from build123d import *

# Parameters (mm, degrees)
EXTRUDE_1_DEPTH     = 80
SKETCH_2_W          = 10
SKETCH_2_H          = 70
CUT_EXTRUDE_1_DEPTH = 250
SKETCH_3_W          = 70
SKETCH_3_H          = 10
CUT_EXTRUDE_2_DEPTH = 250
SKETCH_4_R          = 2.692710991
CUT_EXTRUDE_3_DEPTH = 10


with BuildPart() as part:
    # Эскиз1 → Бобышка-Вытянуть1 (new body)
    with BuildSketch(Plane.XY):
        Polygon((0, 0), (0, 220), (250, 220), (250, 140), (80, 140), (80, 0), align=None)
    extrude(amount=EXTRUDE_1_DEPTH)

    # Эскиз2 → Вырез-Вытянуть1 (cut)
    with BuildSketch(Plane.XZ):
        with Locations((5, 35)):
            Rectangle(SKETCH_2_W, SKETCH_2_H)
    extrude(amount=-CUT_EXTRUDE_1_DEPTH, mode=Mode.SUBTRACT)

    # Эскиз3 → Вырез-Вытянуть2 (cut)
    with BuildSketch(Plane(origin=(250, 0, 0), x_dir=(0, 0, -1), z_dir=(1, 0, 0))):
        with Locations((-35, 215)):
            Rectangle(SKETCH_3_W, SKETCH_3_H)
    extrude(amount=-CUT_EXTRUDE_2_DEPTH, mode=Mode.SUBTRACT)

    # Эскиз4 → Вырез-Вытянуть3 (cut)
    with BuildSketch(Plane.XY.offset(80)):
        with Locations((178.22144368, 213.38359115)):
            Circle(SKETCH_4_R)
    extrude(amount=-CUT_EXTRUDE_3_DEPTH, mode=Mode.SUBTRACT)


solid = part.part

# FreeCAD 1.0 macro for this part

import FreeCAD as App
import Part
import Sketcher
from FreeCAD import Vector


def add_polygon(sketch, points):
    """Adds a closed chain of lines whose ends are joined by coincident constraints."""
    first, n = sketch.GeometryCount, len(points)
    for a, b in zip(points, points[1:] + points[:1]):
        sketch.addGeometry(Part.LineSegment(App.Vector(*a, 0), App.Vector(*b, 0)), False)
    for i in range(n):
        sketch.addConstraint(Sketcher.Constraint("Coincident", first + i, 2, first + (i + 1) % n, 1))

doc = App.newDocument("Part")
body = doc.addObject("PartDesign::Body", "Body")

sketch1 = doc.addObject("Sketcher::SketchObject", "Sketch")
body.addObject(sketch1)
sketch1.AttachmentSupport = (doc.XY_Plane, [""])
sketch1.MapMode = "FlatFace"
add_polygon(sketch1, [(0, 220), (0, 0), (80, 0), (80, 140), (250, 140), (250, 220)])
sketch1.addConstraint(Sketcher.Constraint("Vertical", 0))
sketch1.addConstraint(Sketcher.Constraint("Horizontal", 1))
sketch1.addConstraint(Sketcher.Constraint("Vertical", 2))
sketch1.addConstraint(Sketcher.Constraint("Horizontal", 3))
sketch1.addConstraint(Sketcher.Constraint("Vertical", 4))
sketch1.addConstraint(Sketcher.Constraint("Horizontal", 5))
sketch1.addConstraint(Sketcher.Constraint("Coincident", 0, 2, -1, 1))
sketch1.addConstraint(Sketcher.Constraint("Equal", 1, 4))
sketch1.addConstraint(Sketcher.Constraint("DistanceX", 1, 1, 1, 2, 80.0))
sketch1.addConstraint(Sketcher.Constraint("DistanceX", 3, 1, 3, 2, 170.0))
sketch1.addConstraint(Sketcher.Constraint("DistanceY", 0, 2, 0, 1, 220.0))
pad1 = doc.addObject("PartDesign::Pad", "Pad")
body.addObject(pad1)
pad1.Profile = sketch1
pad1.Length = 80

sketch2 = doc.addObject("Sketcher::SketchObject", "Sketch001")
body.addObject(sketch2)
sketch2.AttachmentSupport = (doc.XZ_Plane, [""])
sketch2.MapMode = "FlatFace"
add_polygon(sketch2, [(0, 70), (0, 0), (10, 0), (10, 70)])
sketch2.addConstraint(Sketcher.Constraint("Vertical", 0))
sketch2.addConstraint(Sketcher.Constraint("Horizontal", 1))
sketch2.addConstraint(Sketcher.Constraint("Vertical", 2))
sketch2.addConstraint(Sketcher.Constraint("Horizontal", 3))
sketch2.addConstraint(Sketcher.Constraint("Coincident", 0, 2, -1, 1))
sketch2.addConstraint(Sketcher.Constraint("DistanceX", 1, 1, 1, 2, 10.0))
sketch2.addConstraint(Sketcher.Constraint("DistanceY", 0, 2, 0, 1, 70.0))
pocket1 = doc.addObject("PartDesign::Pocket", "Pocket")
body.addObject(pocket1)
pocket1.Profile = sketch2
pocket1.Length = 250

sketch3 = doc.addObject("Sketcher::SketchObject", "Sketch002")
body.addObject(sketch3)
sketch3.AttachmentSupport = (doc.YZ_Plane, [""])
sketch3.MapMode = "FlatFace"
sketch3.AttachmentOffset = App.Placement(Vector(0, 0, 250), App.Rotation())
add_polygon(sketch3, [(220, 70), (210, 70), (210, 0), (220, 0)])
sketch3.addConstraint(Sketcher.Constraint("Horizontal", 0))
sketch3.addConstraint(Sketcher.Constraint("Vertical", 1))
sketch3.addConstraint(Sketcher.Constraint("Horizontal", 2))
sketch3.addConstraint(Sketcher.Constraint("Vertical", 3))
sketch3.addConstraint(Sketcher.Constraint("PointOnObject", 1, 2, -1))
sketch3.addConstraint(Sketcher.Constraint("DistanceX", 0, 2, 0, 1, 10.0))
sketch3.addConstraint(Sketcher.Constraint("DistanceY", 1, 2, 1, 1, 70.0))
sketch3.addConstraint(Sketcher.Constraint("DistanceX", -1, 1, 0, 2, 210.0))
pocket2 = doc.addObject("PartDesign::Pocket", "Pocket001")
body.addObject(pocket2)
pocket2.Profile = sketch3
pocket2.Length = 250

sketch4 = doc.addObject("Sketcher::SketchObject", "Sketch003")
body.addObject(sketch4)
sketch4.AttachmentSupport = (doc.XY_Plane, [""])
sketch4.MapMode = "FlatFace"
sketch4.AttachmentOffset = App.Placement(Vector(0, 0, 80), App.Rotation())
sketch4.addGeometry(Part.Circle(Vector(178.221444, 213.383591, 0), Vector(0, 0, 1), 2.692711), False)
sketch4.addConstraint(Sketcher.Constraint("Diameter", 0, 5.385422))
sketch4.addConstraint(Sketcher.Constraint("DistanceY", -1, 1, 0, 3, 213.383591))
sketch4.addConstraint(Sketcher.Constraint("DistanceX", -1, 1, 0, 3, 178.221444))
pocket3 = doc.addObject("PartDesign::Pocket", "Pocket002")
body.addObject(pocket3)
pocket3.Profile = sketch4
pocket3.Length = 10

doc.recompute()
